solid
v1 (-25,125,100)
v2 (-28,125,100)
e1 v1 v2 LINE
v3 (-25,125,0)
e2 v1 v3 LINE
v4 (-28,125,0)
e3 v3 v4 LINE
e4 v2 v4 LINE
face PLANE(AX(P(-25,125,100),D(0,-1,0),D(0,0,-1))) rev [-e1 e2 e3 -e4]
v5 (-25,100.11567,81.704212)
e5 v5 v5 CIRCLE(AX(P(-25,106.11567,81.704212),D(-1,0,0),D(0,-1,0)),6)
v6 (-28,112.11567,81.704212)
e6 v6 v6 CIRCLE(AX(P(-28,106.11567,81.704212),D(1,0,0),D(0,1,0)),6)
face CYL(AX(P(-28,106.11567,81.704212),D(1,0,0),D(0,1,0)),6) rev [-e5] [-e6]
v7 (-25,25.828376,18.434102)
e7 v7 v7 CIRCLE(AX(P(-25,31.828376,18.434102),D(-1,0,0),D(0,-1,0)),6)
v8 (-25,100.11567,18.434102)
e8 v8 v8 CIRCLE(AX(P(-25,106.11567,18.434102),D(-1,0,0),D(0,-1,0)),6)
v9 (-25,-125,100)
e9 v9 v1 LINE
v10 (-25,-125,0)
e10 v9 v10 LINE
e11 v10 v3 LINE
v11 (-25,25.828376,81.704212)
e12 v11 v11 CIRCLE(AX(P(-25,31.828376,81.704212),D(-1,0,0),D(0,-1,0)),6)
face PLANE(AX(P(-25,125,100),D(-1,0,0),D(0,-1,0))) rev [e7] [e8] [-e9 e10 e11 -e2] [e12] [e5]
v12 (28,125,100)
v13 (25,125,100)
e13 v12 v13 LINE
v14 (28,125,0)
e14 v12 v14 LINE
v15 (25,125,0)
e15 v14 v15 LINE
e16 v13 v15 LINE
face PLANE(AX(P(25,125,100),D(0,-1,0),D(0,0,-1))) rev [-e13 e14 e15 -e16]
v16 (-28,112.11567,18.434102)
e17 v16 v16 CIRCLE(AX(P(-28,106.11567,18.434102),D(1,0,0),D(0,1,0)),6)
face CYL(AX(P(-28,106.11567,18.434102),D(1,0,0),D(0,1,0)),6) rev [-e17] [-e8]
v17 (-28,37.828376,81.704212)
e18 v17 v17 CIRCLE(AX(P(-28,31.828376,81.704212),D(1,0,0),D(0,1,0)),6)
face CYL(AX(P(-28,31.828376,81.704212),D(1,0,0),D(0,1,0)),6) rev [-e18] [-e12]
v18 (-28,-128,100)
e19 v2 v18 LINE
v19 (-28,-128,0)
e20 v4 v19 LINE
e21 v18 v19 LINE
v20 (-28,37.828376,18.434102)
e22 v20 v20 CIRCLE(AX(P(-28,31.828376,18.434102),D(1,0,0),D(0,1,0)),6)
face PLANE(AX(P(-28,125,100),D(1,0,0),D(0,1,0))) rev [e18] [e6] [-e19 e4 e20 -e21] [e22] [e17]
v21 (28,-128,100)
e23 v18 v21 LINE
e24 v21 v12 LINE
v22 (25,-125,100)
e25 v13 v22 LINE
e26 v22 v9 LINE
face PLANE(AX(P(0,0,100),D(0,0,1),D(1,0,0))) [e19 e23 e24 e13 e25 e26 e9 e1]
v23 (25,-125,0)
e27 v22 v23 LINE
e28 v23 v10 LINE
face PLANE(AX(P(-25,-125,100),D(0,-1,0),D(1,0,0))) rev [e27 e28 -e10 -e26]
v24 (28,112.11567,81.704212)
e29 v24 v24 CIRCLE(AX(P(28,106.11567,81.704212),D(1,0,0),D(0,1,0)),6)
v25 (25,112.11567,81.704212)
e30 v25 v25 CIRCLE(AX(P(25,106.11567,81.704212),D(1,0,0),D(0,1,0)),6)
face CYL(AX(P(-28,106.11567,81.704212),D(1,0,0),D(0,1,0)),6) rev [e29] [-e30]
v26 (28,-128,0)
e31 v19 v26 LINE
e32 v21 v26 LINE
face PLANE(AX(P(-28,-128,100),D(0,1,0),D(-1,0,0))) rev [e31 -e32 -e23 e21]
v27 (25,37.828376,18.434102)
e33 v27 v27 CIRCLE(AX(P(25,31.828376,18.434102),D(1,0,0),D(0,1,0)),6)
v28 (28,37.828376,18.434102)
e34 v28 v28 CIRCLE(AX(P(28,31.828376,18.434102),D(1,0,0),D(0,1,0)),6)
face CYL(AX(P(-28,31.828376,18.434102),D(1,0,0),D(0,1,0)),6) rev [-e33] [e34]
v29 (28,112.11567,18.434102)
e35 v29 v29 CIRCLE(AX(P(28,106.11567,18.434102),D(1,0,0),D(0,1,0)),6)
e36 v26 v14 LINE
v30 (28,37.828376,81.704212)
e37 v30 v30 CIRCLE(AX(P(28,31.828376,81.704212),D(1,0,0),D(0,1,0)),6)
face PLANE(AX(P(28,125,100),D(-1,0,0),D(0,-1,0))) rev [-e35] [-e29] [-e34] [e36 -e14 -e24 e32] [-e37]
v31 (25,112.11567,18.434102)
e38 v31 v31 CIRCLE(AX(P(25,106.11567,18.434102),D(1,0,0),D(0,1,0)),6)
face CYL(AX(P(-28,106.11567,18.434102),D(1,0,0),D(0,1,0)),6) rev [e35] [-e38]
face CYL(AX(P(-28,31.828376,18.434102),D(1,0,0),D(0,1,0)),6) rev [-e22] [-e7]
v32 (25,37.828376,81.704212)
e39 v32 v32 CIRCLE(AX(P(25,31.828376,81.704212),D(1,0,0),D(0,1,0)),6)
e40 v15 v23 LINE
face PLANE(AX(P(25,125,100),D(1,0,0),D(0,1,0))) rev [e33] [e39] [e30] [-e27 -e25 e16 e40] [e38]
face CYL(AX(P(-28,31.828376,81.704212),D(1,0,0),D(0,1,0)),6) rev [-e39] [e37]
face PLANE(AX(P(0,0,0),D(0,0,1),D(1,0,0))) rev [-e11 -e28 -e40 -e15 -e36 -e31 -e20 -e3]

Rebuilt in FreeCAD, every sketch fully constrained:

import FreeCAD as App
import Part
import Sketcher
from FreeCAD import Vector

doc = App.newDocument("Part")
body = doc.addObject("PartDesign::Body", "Body")

# Sketch on XY plane
sketch1 = doc.addObject("Sketcher::SketchObject", "Sketch")
body.addObject(sketch1)
sketch1.AttachmentSupport = (doc.XY_Plane, [""])
sketch1.MapMode = "FlatFace"
sketch1.addGeometry([
    Part.LineSegment(Vector(-28, 125, 0), Vector(-28, -128, 0)),  # 0
    Part.LineSegment(Vector(-28, -128, 0), Vector(28, -128, 0)),  # 1
    Part.LineSegment(Vector(28, -128, 0), Vector(28, 125, 0)),  # 2
    Part.LineSegment(Vector(28, 125, 0), Vector(25, 125, 0)),  # 3
    Part.LineSegment(Vector(25, 125, 0), Vector(25, -125, 0)),  # 4
    Part.LineSegment(Vector(25, -125, 0), Vector(-25, -125, 0)),  # 5
    Part.LineSegment(Vector(-25, -125, 0), Vector(-25, 125, 0)),  # 6
    Part.LineSegment(Vector(-25, 125, 0), Vector(-28, 125, 0)),  # 7
], False)
sketch1.addConstraint([
    Sketcher.Constraint("Coincident", 0, 2, 1, 1),
    Sketcher.Constraint("Coincident", 1, 2, 2, 1),
    Sketcher.Constraint("Coincident", 2, 2, 3, 1),
    Sketcher.Constraint("Coincident", 3, 2, 4, 1),
    Sketcher.Constraint("Coincident", 4, 2, 5, 1),
    Sketcher.Constraint("Coincident", 5, 2, 6, 1),
    Sketcher.Constraint("Coincident", 6, 2, 7, 1),
    Sketcher.Constraint("Coincident", 7, 2, 0, 1),
    Sketcher.Constraint("Vertical", 0),
    Sketcher.Constraint("Horizontal", 1),
    Sketcher.Constraint("Vertical", 2),
    Sketcher.Constraint("Horizontal", 3),
    Sketcher.Constraint("Vertical", 4),
    Sketcher.Constraint("Horizontal", 5),
    Sketcher.Constraint("Vertical", 6),
    Sketcher.Constraint("Horizontal", 7),
    Sketcher.Constraint("Symmetric", 3, 2, 5, 2, -1, 1),
    Sketcher.Constraint("Symmetric", 2, 2, 7, 2, -2),
    Sketcher.Constraint("DistanceX", 1, 1, 1, 2, 56.0),
    Sketcher.Constraint("DistanceX", 3, 2, 3, 1, 3.0),
    Sketcher.Constraint("DistanceY", 0, 2, 0, 1, 253.0),
    Sketcher.Constraint("DistanceY", 4, 2, 4, 1, 250.0),
])
pad1 = doc.addObject("PartDesign::Pad", "Pad")
body.addObject(pad1)
pad1.Profile = sketch1
pad1.Length = 100

# Sketch on YZ plane
sketch2 = doc.addObject("Sketcher::SketchObject", "Sketch001")
body.addObject(sketch2)
sketch2.AttachmentSupport = (doc.YZ_Plane, [""])
sketch2.MapMode = "FlatFace"
sketch2.AttachmentOffset = App.Placement(Vector(0, 0, 28), App.Rotation())
sketch2.addGeometry([
    Part.Circle(Vector(106, 82, 0), Vector(0, 0, 1), 6),
    Part.Circle(Vector(106, 18, 0), Vector(0, 0, 1), 6),
    Part.Circle(Vector(32, 18, 0), Vector(0, 0, 1), 6),
    Part.Circle(Vector(32, 82, 0), Vector(0, 0, 1), 6),
], False)
sketch2.addConstraint([
    Sketcher.Constraint("Equal", 0, 1),
    Sketcher.Constraint("Equal", 1, 2),
    Sketcher.Constraint("Equal", 2, 3),
    Sketcher.Constraint("Horizontal", 1, 3, 2, 3),
    Sketcher.Constraint("Horizontal", 0, 3, 3, 3),
    Sketcher.Constraint("Vertical", 0, 3, 1, 3),
    Sketcher.Constraint("Vertical", 2, 3, 3, 3),
    Sketcher.Constraint("Diameter", 0, 12.0),
    Sketcher.Constraint("DistanceX", -1, 1, 0, 3, 106.11567),
    Sketcher.Constraint("DistanceY", 1, 3, 0, 3, 63.27011),
    Sketcher.Constraint("DistanceY", -1, 1, 0, 3, 81.704212),
    Sketcher.Constraint("DistanceX", -1, 1, 2, 3, 31.828376),
])
pocket1 = doc.addObject("PartDesign::Pocket", "Pocket")
body.addObject(pocket1)
pocket1.Profile = sketch2
pocket1.Type = "ThroughAll"

doc.recompute()
